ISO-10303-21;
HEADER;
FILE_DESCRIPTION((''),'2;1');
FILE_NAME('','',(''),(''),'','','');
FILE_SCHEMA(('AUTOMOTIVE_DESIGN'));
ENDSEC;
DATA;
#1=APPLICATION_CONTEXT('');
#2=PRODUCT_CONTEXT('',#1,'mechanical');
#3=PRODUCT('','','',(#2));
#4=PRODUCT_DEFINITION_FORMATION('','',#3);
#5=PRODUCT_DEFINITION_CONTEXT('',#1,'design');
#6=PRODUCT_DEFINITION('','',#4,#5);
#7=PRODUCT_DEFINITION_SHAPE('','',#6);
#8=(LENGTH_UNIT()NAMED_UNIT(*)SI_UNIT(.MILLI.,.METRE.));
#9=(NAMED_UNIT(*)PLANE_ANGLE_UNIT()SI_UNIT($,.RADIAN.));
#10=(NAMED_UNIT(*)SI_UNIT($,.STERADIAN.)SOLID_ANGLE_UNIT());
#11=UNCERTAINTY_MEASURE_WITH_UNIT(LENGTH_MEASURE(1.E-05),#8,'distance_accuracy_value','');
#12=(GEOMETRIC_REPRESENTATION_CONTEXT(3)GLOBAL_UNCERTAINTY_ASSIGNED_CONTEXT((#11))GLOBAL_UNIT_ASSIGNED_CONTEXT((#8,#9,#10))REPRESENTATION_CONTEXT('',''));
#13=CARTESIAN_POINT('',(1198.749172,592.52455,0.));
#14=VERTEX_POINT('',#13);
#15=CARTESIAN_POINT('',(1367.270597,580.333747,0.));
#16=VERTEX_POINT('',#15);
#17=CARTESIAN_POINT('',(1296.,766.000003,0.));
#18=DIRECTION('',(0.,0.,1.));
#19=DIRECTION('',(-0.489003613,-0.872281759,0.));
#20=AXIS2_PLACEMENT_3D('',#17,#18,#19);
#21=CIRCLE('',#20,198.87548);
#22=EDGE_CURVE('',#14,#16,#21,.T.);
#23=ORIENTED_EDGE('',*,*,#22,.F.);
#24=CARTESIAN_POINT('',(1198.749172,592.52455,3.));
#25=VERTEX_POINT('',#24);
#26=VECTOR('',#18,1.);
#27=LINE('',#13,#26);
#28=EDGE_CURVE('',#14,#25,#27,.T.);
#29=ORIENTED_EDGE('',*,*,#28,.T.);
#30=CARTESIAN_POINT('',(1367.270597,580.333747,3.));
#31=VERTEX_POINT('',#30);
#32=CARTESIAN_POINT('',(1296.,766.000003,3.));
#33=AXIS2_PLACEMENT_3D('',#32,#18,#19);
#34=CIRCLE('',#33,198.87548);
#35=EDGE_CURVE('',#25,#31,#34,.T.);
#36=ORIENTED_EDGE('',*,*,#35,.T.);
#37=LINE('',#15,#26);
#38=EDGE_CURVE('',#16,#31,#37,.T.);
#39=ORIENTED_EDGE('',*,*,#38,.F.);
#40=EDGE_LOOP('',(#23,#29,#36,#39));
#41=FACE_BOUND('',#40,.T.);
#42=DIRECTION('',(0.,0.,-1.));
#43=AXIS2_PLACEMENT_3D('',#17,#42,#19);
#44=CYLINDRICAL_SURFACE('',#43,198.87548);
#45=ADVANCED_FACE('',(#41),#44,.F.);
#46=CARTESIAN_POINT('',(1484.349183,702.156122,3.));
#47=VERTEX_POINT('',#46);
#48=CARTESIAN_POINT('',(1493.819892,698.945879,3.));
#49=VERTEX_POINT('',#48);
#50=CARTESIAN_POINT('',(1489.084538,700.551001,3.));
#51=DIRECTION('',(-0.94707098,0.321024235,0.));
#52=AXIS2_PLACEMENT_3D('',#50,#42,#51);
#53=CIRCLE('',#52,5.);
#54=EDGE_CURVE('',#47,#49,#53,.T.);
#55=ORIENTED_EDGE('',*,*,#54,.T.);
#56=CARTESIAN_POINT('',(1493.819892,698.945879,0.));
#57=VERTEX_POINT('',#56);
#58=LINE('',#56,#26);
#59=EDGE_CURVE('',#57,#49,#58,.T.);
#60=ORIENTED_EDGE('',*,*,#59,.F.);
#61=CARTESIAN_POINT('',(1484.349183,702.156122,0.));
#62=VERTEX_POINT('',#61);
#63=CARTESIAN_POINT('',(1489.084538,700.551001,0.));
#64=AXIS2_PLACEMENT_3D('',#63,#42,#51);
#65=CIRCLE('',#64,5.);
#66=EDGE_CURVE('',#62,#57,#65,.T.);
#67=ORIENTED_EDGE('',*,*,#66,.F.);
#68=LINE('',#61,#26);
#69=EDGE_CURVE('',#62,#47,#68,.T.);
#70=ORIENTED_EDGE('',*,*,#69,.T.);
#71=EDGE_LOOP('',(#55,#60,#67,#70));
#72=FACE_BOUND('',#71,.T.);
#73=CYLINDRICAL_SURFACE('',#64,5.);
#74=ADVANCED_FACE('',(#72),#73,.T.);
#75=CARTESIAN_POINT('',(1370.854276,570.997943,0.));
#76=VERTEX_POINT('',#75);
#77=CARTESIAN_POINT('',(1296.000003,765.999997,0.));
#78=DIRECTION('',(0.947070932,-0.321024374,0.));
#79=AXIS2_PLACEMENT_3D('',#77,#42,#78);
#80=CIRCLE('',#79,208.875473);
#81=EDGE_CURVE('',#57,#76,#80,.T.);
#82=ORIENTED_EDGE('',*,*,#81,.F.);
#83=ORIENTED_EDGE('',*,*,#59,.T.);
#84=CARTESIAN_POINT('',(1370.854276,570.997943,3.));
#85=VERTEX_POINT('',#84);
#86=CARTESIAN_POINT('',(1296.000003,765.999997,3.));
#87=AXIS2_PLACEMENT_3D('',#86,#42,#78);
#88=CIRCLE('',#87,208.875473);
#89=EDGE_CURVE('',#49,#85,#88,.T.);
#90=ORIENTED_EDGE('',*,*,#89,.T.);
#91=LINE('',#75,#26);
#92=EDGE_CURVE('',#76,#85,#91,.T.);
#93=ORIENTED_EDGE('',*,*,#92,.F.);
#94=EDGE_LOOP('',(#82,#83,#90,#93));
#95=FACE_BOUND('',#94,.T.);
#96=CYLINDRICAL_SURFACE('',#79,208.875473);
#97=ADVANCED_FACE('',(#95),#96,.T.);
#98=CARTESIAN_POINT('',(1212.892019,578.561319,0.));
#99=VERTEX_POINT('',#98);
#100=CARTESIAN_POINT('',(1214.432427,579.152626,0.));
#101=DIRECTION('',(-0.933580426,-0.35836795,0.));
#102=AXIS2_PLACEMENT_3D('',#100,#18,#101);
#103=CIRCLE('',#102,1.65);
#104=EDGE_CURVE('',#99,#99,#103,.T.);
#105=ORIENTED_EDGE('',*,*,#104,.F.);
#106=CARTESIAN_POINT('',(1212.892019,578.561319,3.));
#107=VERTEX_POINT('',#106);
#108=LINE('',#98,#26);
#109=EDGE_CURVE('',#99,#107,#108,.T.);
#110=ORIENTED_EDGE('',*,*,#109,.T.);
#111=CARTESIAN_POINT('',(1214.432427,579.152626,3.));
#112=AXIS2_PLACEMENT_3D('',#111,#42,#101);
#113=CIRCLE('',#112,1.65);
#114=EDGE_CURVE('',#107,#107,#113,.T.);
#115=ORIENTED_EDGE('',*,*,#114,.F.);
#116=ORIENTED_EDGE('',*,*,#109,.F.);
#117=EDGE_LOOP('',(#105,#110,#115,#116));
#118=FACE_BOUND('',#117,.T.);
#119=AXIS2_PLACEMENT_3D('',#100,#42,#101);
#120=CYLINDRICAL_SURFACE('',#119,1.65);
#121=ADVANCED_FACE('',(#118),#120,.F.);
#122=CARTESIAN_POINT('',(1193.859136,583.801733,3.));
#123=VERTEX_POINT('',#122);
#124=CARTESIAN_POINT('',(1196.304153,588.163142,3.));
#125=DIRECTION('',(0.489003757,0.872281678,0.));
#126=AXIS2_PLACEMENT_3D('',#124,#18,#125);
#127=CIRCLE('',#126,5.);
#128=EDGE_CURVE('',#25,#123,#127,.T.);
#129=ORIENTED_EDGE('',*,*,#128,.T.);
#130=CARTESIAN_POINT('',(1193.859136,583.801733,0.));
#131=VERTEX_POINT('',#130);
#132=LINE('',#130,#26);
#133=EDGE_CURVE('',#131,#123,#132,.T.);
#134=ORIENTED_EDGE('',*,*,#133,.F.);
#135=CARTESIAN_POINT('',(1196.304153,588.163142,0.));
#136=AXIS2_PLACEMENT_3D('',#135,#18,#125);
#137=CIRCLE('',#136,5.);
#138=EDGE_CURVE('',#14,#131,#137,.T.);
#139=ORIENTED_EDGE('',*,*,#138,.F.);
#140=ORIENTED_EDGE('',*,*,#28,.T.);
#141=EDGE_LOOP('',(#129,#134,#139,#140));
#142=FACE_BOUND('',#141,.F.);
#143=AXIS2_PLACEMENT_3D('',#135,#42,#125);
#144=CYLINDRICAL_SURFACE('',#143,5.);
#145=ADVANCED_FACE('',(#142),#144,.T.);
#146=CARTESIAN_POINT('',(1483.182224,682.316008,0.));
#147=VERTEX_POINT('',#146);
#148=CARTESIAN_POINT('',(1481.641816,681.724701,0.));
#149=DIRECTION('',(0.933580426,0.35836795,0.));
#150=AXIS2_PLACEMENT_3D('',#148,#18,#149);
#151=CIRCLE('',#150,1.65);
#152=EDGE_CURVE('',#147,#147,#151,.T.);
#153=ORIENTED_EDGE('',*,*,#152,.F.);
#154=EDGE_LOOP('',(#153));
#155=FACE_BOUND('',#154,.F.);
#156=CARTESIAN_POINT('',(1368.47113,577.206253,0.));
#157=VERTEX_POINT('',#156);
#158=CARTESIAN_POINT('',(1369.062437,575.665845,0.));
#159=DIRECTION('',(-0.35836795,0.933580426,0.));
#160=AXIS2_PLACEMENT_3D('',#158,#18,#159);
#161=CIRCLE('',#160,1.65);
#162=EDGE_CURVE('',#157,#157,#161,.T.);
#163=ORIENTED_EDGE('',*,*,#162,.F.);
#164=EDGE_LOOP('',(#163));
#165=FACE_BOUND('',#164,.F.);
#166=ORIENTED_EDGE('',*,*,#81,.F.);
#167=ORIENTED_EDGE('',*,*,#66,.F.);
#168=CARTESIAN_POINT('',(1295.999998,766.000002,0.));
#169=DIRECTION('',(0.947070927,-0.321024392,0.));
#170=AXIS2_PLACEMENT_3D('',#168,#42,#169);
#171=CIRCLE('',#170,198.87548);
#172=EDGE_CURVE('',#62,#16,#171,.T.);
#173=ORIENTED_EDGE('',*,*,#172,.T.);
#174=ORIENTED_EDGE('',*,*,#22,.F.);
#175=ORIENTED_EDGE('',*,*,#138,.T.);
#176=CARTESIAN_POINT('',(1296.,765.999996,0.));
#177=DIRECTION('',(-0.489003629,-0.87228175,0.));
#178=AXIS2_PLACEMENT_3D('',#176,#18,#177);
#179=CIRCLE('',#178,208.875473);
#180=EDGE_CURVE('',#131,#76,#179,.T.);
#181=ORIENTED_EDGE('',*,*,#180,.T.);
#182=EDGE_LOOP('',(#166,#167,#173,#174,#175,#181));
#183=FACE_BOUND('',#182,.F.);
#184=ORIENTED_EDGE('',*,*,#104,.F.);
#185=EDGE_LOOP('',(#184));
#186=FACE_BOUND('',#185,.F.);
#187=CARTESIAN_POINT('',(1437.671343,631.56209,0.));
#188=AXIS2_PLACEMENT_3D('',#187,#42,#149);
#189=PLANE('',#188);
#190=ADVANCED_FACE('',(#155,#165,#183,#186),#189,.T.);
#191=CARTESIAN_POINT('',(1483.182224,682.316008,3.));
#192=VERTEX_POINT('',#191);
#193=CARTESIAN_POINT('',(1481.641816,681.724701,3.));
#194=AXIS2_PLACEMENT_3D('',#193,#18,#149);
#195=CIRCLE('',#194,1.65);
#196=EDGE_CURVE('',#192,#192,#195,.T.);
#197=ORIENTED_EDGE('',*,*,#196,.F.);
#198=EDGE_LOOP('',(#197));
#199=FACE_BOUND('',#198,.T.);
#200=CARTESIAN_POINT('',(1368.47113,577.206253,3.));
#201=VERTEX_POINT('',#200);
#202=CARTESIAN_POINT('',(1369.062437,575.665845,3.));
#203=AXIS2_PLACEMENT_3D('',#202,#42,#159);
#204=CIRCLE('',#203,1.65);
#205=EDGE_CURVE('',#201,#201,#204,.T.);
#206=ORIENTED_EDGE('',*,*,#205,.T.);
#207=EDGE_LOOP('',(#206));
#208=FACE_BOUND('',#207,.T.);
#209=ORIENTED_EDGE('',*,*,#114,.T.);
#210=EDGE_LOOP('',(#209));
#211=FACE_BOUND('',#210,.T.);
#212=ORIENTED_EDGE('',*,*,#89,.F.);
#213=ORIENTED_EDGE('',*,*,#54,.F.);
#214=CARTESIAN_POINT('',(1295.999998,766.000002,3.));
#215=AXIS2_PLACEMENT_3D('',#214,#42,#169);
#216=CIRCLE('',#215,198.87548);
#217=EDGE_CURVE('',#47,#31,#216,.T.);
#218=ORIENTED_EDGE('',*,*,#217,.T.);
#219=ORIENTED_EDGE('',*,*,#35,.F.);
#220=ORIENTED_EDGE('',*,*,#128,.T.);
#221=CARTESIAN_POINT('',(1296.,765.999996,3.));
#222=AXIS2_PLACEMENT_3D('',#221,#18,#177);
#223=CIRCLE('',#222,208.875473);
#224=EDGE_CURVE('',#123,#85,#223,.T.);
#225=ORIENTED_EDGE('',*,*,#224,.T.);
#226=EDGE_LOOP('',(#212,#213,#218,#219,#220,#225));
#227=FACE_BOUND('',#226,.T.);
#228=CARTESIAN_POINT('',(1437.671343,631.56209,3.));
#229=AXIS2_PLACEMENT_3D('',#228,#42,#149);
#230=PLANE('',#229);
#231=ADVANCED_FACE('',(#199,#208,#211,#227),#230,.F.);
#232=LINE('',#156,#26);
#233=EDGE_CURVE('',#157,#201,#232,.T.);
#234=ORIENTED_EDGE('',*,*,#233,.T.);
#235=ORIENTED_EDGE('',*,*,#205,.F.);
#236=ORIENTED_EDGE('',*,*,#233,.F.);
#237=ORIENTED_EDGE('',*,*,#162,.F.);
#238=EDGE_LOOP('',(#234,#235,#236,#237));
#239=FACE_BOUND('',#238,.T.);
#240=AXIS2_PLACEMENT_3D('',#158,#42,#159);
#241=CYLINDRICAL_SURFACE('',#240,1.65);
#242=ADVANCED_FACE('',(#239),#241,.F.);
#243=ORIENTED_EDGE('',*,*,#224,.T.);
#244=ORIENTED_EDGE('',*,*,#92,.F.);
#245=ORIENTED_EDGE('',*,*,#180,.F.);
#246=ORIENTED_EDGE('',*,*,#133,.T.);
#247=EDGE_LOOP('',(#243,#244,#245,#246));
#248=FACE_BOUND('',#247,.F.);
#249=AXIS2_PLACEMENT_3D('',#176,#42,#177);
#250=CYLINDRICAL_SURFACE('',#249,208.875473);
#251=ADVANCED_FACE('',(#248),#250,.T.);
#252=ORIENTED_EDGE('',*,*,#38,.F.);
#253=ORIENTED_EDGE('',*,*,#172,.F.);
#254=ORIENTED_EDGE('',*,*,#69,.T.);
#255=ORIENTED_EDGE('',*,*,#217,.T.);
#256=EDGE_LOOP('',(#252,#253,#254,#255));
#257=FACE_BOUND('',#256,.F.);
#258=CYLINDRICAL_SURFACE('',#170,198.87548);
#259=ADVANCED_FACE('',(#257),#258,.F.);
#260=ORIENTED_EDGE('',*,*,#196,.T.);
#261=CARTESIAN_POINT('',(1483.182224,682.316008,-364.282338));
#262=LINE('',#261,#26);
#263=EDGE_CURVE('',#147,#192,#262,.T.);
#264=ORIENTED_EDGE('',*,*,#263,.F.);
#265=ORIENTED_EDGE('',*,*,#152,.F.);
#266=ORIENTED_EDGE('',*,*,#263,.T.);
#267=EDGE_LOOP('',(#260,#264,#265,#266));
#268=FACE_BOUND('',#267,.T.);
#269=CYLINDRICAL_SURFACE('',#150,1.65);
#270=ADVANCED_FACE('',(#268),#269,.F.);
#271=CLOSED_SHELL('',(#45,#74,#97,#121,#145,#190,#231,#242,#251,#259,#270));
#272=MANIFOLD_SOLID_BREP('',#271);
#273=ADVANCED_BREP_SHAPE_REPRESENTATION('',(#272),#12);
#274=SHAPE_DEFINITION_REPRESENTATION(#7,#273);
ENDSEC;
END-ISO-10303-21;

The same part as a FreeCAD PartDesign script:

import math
import FreeCAD as App
import Part
import Sketcher

doc = App.newDocument("Part")
body = doc.addObject("PartDesign::Body", "Body")

# Sketch on XY plane
sketch1 = body.newObject("Sketcher::SketchObject", "Sketch")
sketch1.AttachmentSupport = (doc.getObject("XY_Plane"), [""])
sketch1.MapMode = "FlatFace"
sketch1.addGeometry([
    Part.ArcOfCircle(Part.Circle(App.Vector(0, 0, 0), App.Vector(0, 0, 1), 198.9), math.radians(40), math.radians(90)),
    Part.ArcOfCircle(Part.Circle(App.Vector(156.8, 130.3, 0), App.Vector(0, 0, 1), 5), math.radians(-140), math.radians(40)),
    Part.ArcOfCircle(Part.Circle(App.Vector(0, 0, 0), App.Vector(0, 0, 1), 208.9), math.radians(40), math.radians(90)),
    Part.LineSegment(App.Vector(0, 208.9, 0), App.Vector(0, 198.9, 0)),
], False)
sketch1.addConstraint([
    Sketcher.Constraint("Tangent", 0, 1, 1, 1),
    Sketcher.Constraint("Tangent", 1, 2, 2, 1),
    Sketcher.Constraint("Coincident", 2, 2, 3, 1),
    Sketcher.Constraint("Coincident", 3, 2, 0, 2),
    Sketcher.Constraint("Vertical", 3),
    Sketcher.Constraint("Coincident", 0, 3, -1, 1),
    Sketcher.Constraint("Coincident", 2, 3, -1, 1),
    Sketcher.Constraint("PointOnObject", 2, 2, -2),
    Sketcher.Constraint("Radius", 1, 5.0),
    Sketcher.Constraint("Radius", 0, 198.87548),
    Sketcher.Constraint("DistanceY", 2, 3, 0, 1, 127.101701),
])
pad1 = body.newObject("PartDesign::Pad", "Pad")
pad1.Profile = sketch1
pad1.Length = 3

# Sketch on XY plane
sketch2 = body.newObject("Sketcher::SketchObject", "Sketch001")
sketch2.AttachmentSupport = (doc.getObject("XY_Plane"), [""])
sketch2.MapMode = "FlatFace"
sketch2.addGeometry([
    Part.Circle(App.Vector(143.1, 145.2, 0), App.Vector(0, 0, 1), 1.6),
    Part.LineSegment(App.Vector(0, 205.5, 0), App.Vector(0, 202.2, 0)),
    Part.ArcOfCircle(Part.Circle(App.Vector(0, 203.9, 0), App.Vector(0, 0, 1), 1.6), math.radians(-90), math.radians(90)),
], False)
sketch2.addConstraint([
    Sketcher.Constraint("Coincident", 1, 1, 2, 2),
    Sketcher.Constraint("Coincident", 2, 1, 1, 2),
    Sketcher.Constraint("Vertical", 1),
    Sketcher.Constraint("Equal", 0, 2),
    Sketcher.Constraint("PointOnObject", 2, 3, -2),
    Sketcher.Constraint("PointOnObject", 1, 1, -2),
    Sketcher.Constraint("Diameter", 0, 3.3),
    Sketcher.Constraint("DistanceX", -1, 1, 0, 3, 143.11),
    Sketcher.Constraint("DistanceY", 0, 3, 2, 3, 58.66963),
    Sketcher.Constraint("DistanceY", -1, 1, 0, 3, 145.205847),
])
pocket1 = body.newObject("PartDesign::Pocket", "Pocket")
pocket1.Profile = sketch2
pocket1.Type = "ThroughAll"
pocket1.Midplane = True
doc.recompute()

mirrored = body.newObject("PartDesign::Mirrored", "Mirrored")
mirrored.Originals = [pad1, pocket1]
mirrored.MirrorPlane = (doc.getObject("YZ_Plane"), [""])
body.Tip = mirrored
body2 = doc.addObject("PartDesign::Body", "Body001")
doc.recompute()

body.Placement = App.Placement(App.Vector(0, 0, 0), App.Rotation(App.Vector(0, 0, 1), 60))
boolean = body2.newObject("PartDesign::Boolean", "Boolean")
boolean.Type = "Fuse"
boolean.addObjects([body])
body3 = doc.addObject("PartDesign::Body", "Body002")
doc.recompute()

body2.Placement = App.Placement(App.Vector(1296, 766, 0), App.Rotation(App.Vector(0, 0, 1), 141))
boolean2 = body3.newObject("PartDesign::Boolean", "Boolean001")
boolean2.Type = "Fuse"
boolean2.addObjects([body2])

doc.recompute()
